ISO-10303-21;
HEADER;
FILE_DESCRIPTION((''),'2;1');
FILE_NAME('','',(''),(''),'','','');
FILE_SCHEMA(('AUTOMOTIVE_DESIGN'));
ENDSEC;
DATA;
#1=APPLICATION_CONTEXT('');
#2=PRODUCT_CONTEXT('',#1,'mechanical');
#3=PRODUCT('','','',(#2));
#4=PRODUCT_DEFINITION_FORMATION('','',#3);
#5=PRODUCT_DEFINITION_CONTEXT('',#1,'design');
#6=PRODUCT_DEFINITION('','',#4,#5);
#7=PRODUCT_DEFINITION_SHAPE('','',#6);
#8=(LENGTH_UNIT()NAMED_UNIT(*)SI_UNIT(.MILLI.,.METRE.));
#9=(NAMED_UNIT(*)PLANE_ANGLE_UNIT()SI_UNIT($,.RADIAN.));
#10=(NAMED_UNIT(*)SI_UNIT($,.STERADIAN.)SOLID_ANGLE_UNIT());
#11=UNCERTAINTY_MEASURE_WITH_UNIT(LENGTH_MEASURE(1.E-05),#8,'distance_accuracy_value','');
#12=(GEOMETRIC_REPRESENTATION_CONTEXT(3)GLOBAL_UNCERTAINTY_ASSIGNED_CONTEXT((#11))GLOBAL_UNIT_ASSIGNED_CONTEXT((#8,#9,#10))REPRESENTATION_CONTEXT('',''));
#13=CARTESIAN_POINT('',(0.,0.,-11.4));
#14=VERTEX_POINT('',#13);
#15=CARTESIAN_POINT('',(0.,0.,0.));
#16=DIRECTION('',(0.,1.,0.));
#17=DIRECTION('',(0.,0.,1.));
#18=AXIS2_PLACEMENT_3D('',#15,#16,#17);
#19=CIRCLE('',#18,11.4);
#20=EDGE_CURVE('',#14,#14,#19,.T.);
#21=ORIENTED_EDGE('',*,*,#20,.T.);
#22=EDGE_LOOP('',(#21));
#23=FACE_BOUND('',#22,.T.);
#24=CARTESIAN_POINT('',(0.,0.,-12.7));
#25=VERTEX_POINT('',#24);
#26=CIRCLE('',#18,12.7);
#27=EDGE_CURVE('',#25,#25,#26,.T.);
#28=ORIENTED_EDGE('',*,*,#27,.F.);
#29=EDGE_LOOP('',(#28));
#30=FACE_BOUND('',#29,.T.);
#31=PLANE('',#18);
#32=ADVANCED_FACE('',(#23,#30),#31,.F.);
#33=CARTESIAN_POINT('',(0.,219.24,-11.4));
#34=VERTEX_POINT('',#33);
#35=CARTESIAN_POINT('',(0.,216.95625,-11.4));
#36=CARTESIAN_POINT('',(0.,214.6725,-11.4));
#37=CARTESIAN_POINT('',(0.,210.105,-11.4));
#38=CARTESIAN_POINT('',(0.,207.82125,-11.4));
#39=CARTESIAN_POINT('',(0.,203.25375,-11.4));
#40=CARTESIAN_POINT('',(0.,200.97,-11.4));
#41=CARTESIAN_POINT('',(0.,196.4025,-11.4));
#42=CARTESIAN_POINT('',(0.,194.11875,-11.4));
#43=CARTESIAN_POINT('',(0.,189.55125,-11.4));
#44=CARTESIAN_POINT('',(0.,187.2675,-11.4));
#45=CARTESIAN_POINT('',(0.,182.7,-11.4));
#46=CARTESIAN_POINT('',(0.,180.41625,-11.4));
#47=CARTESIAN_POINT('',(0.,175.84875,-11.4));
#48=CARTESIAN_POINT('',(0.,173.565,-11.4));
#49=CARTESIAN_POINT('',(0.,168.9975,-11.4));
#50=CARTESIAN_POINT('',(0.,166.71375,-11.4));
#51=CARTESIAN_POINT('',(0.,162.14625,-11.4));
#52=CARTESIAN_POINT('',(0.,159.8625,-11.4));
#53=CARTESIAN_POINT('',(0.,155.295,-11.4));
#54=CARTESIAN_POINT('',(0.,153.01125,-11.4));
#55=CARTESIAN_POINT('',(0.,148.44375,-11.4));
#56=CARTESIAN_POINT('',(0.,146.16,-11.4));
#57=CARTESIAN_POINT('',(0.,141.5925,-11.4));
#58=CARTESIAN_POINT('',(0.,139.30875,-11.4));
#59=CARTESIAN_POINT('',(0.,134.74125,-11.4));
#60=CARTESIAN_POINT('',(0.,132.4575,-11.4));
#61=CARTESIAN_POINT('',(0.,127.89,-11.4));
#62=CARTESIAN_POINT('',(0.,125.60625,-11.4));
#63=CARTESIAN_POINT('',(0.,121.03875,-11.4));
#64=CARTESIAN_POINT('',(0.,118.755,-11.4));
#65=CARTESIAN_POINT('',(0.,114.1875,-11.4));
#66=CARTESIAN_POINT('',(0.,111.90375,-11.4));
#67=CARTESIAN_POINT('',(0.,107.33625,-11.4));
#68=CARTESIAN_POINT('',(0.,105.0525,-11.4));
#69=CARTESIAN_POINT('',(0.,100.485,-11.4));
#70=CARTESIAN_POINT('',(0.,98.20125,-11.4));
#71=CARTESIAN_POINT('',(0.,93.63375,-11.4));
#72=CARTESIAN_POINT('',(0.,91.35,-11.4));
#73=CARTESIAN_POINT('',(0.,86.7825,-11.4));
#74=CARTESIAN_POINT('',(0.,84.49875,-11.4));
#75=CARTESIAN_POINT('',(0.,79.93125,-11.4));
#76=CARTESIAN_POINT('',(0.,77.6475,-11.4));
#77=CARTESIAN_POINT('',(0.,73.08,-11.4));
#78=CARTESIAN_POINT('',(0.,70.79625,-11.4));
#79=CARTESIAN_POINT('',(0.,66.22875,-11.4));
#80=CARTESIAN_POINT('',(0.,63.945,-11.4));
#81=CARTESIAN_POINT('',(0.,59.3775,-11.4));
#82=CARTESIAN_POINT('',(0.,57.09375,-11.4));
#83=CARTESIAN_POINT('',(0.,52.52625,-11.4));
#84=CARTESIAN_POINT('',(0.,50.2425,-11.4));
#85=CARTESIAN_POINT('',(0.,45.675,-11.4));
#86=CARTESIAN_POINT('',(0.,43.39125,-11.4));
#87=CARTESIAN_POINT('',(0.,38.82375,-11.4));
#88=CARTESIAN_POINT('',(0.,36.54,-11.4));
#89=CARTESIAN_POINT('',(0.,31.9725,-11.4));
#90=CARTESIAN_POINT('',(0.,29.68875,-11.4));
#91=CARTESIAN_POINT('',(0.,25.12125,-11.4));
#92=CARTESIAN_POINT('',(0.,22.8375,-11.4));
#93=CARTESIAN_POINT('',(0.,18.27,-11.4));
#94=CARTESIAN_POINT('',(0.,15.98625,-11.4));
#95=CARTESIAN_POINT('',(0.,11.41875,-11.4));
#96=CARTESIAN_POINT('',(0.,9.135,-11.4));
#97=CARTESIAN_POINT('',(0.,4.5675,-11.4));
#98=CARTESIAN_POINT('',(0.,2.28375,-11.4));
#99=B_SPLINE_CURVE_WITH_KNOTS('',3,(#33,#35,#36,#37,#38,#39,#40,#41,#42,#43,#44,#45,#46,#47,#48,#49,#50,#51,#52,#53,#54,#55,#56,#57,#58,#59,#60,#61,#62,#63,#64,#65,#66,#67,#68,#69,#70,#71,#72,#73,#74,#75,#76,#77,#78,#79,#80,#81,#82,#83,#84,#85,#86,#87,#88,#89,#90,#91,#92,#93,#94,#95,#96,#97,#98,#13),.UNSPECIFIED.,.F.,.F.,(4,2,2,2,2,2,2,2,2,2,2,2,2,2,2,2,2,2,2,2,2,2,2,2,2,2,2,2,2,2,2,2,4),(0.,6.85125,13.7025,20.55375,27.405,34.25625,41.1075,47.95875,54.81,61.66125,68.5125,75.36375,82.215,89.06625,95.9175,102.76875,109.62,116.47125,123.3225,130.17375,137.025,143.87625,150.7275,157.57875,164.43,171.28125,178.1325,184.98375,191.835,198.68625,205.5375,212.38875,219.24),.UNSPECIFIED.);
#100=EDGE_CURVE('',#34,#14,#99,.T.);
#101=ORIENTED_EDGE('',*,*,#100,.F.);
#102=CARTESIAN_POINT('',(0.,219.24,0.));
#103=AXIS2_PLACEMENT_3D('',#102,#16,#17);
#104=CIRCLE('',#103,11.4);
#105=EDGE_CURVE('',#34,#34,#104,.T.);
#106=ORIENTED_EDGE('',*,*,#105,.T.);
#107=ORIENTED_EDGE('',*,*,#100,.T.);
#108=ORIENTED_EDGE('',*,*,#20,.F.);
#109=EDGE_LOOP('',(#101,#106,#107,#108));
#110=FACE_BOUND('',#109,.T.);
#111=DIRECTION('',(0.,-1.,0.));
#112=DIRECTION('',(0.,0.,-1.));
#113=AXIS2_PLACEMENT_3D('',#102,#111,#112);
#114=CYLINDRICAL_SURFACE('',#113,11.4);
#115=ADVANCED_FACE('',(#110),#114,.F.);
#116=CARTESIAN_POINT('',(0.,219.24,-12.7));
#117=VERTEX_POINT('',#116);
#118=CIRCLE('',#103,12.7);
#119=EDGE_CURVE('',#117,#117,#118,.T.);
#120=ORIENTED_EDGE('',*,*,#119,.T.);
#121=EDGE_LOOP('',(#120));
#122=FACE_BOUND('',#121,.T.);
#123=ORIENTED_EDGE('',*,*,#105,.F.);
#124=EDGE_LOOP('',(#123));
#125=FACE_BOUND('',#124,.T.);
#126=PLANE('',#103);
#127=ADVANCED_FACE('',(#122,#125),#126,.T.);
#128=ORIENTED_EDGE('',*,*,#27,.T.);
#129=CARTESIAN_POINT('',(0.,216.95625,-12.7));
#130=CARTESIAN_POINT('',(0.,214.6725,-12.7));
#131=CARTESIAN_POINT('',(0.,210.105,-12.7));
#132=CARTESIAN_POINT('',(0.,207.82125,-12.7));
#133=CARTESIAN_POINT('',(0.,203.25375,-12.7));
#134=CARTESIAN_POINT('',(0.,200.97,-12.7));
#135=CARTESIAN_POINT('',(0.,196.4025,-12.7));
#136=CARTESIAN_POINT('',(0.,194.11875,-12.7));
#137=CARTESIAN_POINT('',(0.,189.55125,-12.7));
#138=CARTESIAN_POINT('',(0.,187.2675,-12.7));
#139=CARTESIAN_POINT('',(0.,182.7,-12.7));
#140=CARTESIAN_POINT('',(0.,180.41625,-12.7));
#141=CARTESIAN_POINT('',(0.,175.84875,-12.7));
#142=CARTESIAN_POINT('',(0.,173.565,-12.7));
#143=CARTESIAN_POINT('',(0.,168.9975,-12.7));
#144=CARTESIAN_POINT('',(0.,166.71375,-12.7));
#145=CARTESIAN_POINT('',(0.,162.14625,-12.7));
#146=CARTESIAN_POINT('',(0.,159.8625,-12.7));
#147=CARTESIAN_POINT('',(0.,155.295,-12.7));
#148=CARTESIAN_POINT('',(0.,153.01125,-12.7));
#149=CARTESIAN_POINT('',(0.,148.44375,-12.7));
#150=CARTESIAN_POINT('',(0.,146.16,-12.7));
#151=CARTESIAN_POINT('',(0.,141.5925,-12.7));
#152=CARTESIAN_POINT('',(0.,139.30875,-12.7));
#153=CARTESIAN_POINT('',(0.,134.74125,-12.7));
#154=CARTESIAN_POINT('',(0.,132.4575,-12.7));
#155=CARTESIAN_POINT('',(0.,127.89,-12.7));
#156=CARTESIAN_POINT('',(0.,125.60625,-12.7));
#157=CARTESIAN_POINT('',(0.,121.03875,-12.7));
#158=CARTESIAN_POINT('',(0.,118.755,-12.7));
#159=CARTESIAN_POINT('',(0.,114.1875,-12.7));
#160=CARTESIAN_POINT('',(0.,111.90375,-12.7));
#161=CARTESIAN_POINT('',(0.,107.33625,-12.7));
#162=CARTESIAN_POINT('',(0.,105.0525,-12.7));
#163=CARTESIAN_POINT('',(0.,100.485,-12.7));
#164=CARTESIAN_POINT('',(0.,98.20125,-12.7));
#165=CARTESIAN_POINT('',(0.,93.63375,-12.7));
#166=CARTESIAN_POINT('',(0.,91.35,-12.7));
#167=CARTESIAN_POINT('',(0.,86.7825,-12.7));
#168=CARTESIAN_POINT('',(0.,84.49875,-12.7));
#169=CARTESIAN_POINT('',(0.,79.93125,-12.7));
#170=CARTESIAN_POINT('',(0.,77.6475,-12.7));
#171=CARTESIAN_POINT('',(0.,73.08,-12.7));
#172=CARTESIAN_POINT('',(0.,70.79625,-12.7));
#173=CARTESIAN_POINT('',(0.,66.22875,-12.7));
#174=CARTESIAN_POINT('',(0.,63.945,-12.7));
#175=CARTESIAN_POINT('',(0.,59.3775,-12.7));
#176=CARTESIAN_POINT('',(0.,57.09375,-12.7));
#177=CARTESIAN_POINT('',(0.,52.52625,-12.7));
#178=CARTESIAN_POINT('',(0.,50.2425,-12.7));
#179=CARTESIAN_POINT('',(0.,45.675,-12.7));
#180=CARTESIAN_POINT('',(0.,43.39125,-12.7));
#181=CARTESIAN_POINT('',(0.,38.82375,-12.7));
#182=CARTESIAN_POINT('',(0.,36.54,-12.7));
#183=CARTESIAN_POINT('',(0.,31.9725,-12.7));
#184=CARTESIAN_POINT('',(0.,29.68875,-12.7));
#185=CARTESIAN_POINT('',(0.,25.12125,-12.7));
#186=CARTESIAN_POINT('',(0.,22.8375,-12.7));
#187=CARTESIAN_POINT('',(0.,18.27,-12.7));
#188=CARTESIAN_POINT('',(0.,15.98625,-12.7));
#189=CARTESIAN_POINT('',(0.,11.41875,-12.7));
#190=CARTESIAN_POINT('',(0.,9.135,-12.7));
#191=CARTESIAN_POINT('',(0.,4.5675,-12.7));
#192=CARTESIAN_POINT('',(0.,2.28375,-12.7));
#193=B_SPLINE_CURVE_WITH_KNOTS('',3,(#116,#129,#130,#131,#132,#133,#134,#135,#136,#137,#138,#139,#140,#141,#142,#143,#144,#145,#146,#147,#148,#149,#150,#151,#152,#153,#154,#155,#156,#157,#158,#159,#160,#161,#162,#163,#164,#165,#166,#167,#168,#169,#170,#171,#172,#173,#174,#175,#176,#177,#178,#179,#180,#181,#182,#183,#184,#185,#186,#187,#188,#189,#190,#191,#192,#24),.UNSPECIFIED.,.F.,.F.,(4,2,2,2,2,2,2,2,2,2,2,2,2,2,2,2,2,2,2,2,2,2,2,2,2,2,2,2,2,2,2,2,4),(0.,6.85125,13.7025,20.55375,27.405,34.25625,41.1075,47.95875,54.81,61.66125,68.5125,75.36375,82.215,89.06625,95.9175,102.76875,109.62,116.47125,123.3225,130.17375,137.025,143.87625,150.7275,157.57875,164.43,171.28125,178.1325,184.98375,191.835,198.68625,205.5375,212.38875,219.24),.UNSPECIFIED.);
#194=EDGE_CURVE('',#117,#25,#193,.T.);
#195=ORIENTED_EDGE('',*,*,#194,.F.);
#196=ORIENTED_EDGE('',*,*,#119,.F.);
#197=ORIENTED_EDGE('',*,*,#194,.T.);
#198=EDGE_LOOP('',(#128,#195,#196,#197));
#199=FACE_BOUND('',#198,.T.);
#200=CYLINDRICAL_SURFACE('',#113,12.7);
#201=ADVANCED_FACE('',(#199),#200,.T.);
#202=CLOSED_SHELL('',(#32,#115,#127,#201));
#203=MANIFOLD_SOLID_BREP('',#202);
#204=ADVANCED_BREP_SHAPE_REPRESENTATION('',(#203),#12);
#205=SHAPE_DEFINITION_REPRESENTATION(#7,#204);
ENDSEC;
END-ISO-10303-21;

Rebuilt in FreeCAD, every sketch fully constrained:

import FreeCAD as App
import Part
import Sketcher

V = App.Vector
Q = App.Units.Quantity

doc = App.newDocument("Part")
params = doc.addObject("Spreadsheet::Sheet", "Params")
for row, (alias, value) in enumerate([
    ("sketch1_diameter", "25.4 mm"),
    ("sketch1_diameter2", "22.8 mm"),
    ("pad1_length", "219.24 mm"),
], start=1):
    params.set(f"A{row}", alias)
    params.set(f"B{row}", "=" + value)
    params.setAlias(f"B{row}", alias)

body = doc.addObject("PartDesign::Body", "Body")

sketch1 = body.newObject("Sketcher::SketchObject", "Sketch")
sketch1.AttachmentSupport = (doc.getObject("XZ_Plane"), [""])
sketch1.MapMode = "FlatFace"
sketch1.addGeometry([
    Part.Circle(V(0, 0, 0), V(0, 0, 1), 13),
    Part.Circle(V(0, 0, 0), V(0, 0, 1), 11),
], False)
sketch1.addConstraint([
    Sketcher.Constraint("Coincident", 0, 3, -1, 1),
    Sketcher.Constraint("Coincident", 1, 3, -1, 1),
    Sketcher.Constraint("Diameter", 0, Q("25.4 mm")),
    Sketcher.Constraint("Diameter", 1, Q("22.8 mm")),
])
sketch1.setExpression("Constraints[2]", "Params.sketch1_diameter")
sketch1.setExpression("Constraints[3]", "Params.sketch1_diameter2")
pad1 = body.newObject("PartDesign::Pad", "Pad")
pad1.Profile = sketch1
pad1.setExpression("Length", "Params.pad1_length")
pad1.Reversed = True

doc.recompute()
